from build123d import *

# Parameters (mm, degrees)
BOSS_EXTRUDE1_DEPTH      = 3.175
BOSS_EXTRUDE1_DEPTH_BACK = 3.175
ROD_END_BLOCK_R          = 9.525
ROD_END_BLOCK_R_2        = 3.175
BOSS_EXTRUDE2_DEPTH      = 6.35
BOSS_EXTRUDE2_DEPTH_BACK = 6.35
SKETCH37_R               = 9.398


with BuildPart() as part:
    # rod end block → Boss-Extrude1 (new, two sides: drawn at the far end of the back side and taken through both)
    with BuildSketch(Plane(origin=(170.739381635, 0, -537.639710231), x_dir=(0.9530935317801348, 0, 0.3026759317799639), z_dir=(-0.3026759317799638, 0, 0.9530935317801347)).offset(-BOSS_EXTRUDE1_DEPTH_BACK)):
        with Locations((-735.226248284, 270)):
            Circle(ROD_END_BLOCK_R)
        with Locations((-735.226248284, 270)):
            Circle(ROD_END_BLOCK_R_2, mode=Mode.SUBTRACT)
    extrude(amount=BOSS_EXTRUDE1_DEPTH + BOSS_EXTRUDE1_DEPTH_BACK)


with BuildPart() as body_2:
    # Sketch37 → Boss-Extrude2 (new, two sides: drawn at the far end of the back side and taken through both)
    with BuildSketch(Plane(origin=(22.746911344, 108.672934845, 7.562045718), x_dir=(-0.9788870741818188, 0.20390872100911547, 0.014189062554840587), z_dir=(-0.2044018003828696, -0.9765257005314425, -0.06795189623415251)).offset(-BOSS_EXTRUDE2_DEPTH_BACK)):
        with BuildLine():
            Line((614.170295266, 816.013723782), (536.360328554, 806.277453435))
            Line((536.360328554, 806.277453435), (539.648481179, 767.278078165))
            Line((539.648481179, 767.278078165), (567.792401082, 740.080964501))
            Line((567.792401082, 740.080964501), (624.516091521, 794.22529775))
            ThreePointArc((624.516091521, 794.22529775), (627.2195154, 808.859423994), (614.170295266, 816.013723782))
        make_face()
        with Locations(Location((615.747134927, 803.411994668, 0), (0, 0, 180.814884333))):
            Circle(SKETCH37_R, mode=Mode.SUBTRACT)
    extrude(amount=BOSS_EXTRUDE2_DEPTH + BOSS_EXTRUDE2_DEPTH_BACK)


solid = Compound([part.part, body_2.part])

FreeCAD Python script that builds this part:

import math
import FreeCAD as App
import Part
import Sketcher
Q = App.Units.Quantity

doc = App.newDocument("Part")
params = doc.addObject("Spreadsheet::Sheet", "Params")
for row, (alias, value) in enumerate([
    ("sketch1_diameter", "0.75 in"),
    ("sketch1_diameter2", "0.25 in"),
    ("pad1_length", "0.125 in"),
    ("pad1_length2", "0.125 in"),
    ("sketch2_radius", "0.5 in"),
    ("sketch2_diameter", "0.74 in"),
    ("pad2_length", "0.25 in"),
    ("pad2_length2", "0.25 in"),
], start=1):
    params.set(f"A{row}", alias)
    params.set(f"B{row}", "=" + value)
    params.setAlias(f"B{row}", alias)

body = doc.addObject("PartDesign::Body", "Body")

# Sketch on an angled plane
sketch1 = doc.addObject("Sketcher::SketchObject", "Sketch")
body.addObject(sketch1)
sketch1.Placement = App.Placement(App.Vector(170.739382, 0, -537.63971), App.Rotation(App.Vector(0.953093532, 0, 0.302675932), App.Vector(0, 1.000000001, 0), App.Vector(-0.302675932, 0, 0.953093532), "ZXY"))
sketch1.addGeometry([
    Part.Circle(App.Vector(-735.2, 270, 0), App.Vector(0, 0, 1), 9.5),
    Part.Circle(App.Vector(-735.2, 270, 0), App.Vector(0, 0, 1), 3.2),
], False)
sketch1.addConstraint([
    Sketcher.Constraint("Coincident", 1, 3, 0, 3),
    Sketcher.Constraint("Diameter", 0, Q("0.75 in")),
    Sketcher.Constraint("Diameter", 1, Q("0.25 in")),
    Sketcher.Constraint("DistanceY", -1, 1, 0, 3, 270.0),
    Sketcher.Constraint("DistanceX", 0, 3, -1, 1, 735.226249),
])
sketch1.setExpression("Constraints[1]", "Params.sketch1_diameter")
sketch1.setExpression("Constraints[2]", "Params.sketch1_diameter2")
pad1 = doc.addObject("PartDesign::Pad", "Pad")
body.addObject(pad1)
pad1.Profile = sketch1
pad1.Type = "TwoLengths"
pad1.setExpression("Length", "Params.pad1_length")
pad1.setExpression("Length2", "Params.pad1_length2")
body2 = doc.addObject("PartDesign::Body", "Body001")

# Sketch on an angled plane
sketch2 = doc.addObject("Sketcher::SketchObject", "Sketch001")
body2.addObject(sketch2)
sketch2.Placement = App.Placement(App.Vector(22.746911, 108.672935, 7.562046), App.Rotation(App.Vector(-0.978887074, 0.203908721, 0.014189063), App.Vector(0, 0.069417503, -0.997587696), App.Vector(-0.2044018, -0.976525701, -0.067951896), "ZXY"))
sketch2.addGeometry([
    Part.LineSegment(App.Vector(614, 816, 0), App.Vector(536, 806, 0)),  # 0
    Part.LineSegment(App.Vector(536, 806, 0), App.Vector(540, 767, 0)),  # 1
    Part.LineSegment(App.Vector(540, 767, 0), App.Vector(568, 740, 0)),  # 2
    Part.LineSegment(App.Vector(568, 740, 0), App.Vector(625, 794, 0)),  # 3
    Part.ArcOfCircle(Part.Circle(App.Vector(616, 803, 0), App.Vector(0, 0, 1), 13), math.radians(-46), math.radians(97)),  # 4
    Part.Circle(App.Vector(616, 803, 0), App.Vector(0, 0, 1), 9),  # 5
], False)
sketch2.addConstraint([
    Sketcher.Constraint("Coincident", 0, 2, 1, 1),
    Sketcher.Constraint("Coincident", 1, 2, 2, 1),
    Sketcher.Constraint("Coincident", 2, 2, 3, 1),
    Sketcher.Constraint("Tangent", 3, 2, 4, 1),
    Sketcher.Constraint("Tangent", 4, 2, 0, 1),
    Sketcher.Constraint("Coincident", 5, 3, 4, 3),
    Sketcher.Constraint("Equal", 1, 2),
    Sketcher.Constraint("Equal", 0, 3),
    Sketcher.Constraint("Radius", 4, Q("0.5 in")),
    Sketcher.Constraint("Diameter", 5, Q("0.74 in")),
    Sketcher.Constraint("DistanceX", -1, 1, 2, 2, 567.792401),
    Sketcher.Constraint("DistanceY", -1, 1, 3, 2, 794.225298),
    Sketcher.Constraint("DistanceX", -1, 1, 0, 2, 536.360328),
    Sketcher.Constraint("DistanceX", -1, 1, 1, 2, 539.648481),
    Sketcher.Constraint("DistanceY", -1, 1, 1, 2, 767.278078),
    Sketcher.Constraint("DistanceX", -1, 1, 3, 2, 624.516091),
])
sketch2.setExpression("Constraints[8]", "Params.sketch2_radius")
sketch2.setExpression("Constraints[9]", "Params.sketch2_diameter")
pad2 = doc.addObject("PartDesign::Pad", "Pad001")
body2.addObject(pad2)
pad2.Profile = sketch2
pad2.Type = "TwoLengths"
pad2.setExpression("Length", "Params.pad2_length")
pad2.setExpression("Length2", "Params.pad2_length2")

doc.recompute()
